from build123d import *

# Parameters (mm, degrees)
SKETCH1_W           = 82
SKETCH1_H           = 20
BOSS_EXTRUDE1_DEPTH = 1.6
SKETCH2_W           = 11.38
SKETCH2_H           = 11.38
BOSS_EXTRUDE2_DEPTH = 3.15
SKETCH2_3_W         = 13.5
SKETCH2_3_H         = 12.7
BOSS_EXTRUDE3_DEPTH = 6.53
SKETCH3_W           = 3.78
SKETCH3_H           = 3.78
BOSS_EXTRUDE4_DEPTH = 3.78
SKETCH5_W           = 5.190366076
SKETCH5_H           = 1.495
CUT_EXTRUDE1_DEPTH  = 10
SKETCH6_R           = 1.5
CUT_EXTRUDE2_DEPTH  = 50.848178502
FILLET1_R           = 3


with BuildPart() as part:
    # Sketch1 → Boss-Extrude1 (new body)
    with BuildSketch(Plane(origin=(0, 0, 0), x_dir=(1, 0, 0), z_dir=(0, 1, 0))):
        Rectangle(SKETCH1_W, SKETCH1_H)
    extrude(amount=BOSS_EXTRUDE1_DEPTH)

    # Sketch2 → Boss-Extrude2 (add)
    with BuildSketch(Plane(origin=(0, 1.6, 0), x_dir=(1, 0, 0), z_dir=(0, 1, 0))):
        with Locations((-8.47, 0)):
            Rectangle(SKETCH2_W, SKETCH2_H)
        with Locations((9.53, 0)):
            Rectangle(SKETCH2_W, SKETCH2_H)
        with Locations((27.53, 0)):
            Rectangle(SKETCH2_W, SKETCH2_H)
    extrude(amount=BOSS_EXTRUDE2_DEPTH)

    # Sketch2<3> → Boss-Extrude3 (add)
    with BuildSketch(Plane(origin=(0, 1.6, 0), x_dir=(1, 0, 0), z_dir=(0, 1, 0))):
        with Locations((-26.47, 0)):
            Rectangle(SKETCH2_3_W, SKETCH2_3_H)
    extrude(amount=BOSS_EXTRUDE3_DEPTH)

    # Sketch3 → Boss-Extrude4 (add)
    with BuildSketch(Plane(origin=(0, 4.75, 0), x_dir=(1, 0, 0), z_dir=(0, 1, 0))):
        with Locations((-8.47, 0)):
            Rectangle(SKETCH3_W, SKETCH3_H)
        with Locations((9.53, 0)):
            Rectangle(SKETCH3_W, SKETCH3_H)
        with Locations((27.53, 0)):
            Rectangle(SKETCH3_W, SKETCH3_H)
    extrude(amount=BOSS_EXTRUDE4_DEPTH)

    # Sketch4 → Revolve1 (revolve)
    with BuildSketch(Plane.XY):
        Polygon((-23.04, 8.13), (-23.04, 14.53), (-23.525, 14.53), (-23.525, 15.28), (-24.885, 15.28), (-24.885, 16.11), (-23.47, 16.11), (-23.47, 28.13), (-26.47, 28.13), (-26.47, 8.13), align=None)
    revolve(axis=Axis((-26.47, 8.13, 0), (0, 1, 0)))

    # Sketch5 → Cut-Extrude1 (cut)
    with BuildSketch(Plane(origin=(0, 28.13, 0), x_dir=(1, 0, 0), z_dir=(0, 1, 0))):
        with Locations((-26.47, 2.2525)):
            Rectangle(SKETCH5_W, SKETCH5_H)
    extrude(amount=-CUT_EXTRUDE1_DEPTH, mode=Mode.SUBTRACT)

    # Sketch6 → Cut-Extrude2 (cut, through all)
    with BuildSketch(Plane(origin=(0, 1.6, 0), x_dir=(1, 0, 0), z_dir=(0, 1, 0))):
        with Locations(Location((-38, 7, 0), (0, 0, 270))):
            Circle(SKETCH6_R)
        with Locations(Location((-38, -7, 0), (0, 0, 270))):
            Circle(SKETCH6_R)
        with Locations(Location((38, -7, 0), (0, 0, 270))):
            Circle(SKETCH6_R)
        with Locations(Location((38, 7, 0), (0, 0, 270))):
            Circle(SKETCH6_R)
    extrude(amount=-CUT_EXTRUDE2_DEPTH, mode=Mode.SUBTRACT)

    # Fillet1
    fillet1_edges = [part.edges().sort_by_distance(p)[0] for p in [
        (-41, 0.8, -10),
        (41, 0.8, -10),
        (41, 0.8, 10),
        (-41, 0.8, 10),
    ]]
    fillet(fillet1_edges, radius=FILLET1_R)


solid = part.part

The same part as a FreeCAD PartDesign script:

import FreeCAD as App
import Part
import Sketcher

V = App.Vector
Q = App.Units.Quantity


def edges_at(feature, points):
    """Names of the edges that pass closest to the given points."""
    edges = feature.Shape.Edges
    near = lambda p: min(range(len(edges)), key=lambda i: edges[i].distToShape(Part.Vertex(*p))[0])
    return sorted({f"Edge{near(p) + 1}" for p in points})

doc = App.newDocument("Part")
body = doc.addObject("PartDesign::Body", "Body")

sketch1 = body.newObject("Sketcher::SketchObject", "Sketch")
sketch1.AttachmentSupport = (doc.getObject("XZ_Plane"), [""])
sketch1.MapMode = "FlatFace"
sketch1.addGeometry([
    Part.LineSegment(V(-41, -10, 0), V(-41, 10, 0)),
    Part.LineSegment(V(-41, 10, 0), V(41, 10, 0)),
    Part.LineSegment(V(41, 10, 0), V(41, -10, 0)),
    Part.LineSegment(V(41, -10, 0), V(-41, -10, 0)),
], False)
sketch1.addConstraint([
    Sketcher.Constraint("Coincident", 0, 2, 1, 1),
    Sketcher.Constraint("Coincident", 1, 2, 2, 1),
    Sketcher.Constraint("Coincident", 2, 2, 3, 1),
    Sketcher.Constraint("Coincident", 3, 2, 0, 1),
    Sketcher.Constraint("Vertical", 0),
    Sketcher.Constraint("Horizontal", 1),
    Sketcher.Constraint("Vertical", 2),
    Sketcher.Constraint("Horizontal", 3),
    Sketcher.Constraint("Symmetric", 0, 2, 2, 2, -1, 1),
    Sketcher.Constraint("DistanceX", 1, 1, 1, 2, Q("82 mm")),
    Sketcher.Constraint("DistanceY", 0, 1, 0, 2, Q("20 mm")),
])
pad1 = body.newObject("PartDesign::Pad", "Pad")
pad1.Profile = sketch1
pad1.Length = 1.6
pad1.Reversed = True

sketch2 = body.newObject("Sketcher::SketchObject", "Sketch001")
sketch2.AttachmentSupport = (doc.getObject("XZ_Plane"), [""])
sketch2.MapMode = "FlatFace"
sketch2.AttachmentOffset = App.Placement(V(0, 0, -1.6), App.Rotation())
sketch2.addGeometry([
    Part.LineSegment(V(-14, -6, 0), V(-14, 6, 0)),
    Part.LineSegment(V(-14, 6, 0), V(-3, 6, 0)),
    Part.LineSegment(V(-3, 6, 0), V(-3, -6, 0)),
    Part.LineSegment(V(-3, -6, 0), V(-14, -6, 0)),
    Part.LineSegment(V(4, -6, 0), V(4, 6, 0)),
    Part.LineSegment(V(4, 6, 0), V(15, 6, 0)),
    Part.LineSegment(V(15, 6, 0), V(15, -6, 0)),
    Part.LineSegment(V(15, -6, 0), V(4, -6, 0)),
    Part.LineSegment(V(22, -6, 0), V(22, 6, 0)),
    Part.LineSegment(V(22, 6, 0), V(33, 6, 0)),
    Part.LineSegment(V(33, 6, 0), V(33, -6, 0)),
    Part.LineSegment(V(33, -6, 0), V(22, -6, 0)),
], False)
sketch2.addConstraint([
    Sketcher.Constraint("Coincident", 0, 2, 1, 1),
    Sketcher.Constraint("Coincident", 1, 2, 2, 1),
    Sketcher.Constraint("Coincident", 2, 2, 3, 1),
    Sketcher.Constraint("Coincident", 3, 2, 0, 1),
    Sketcher.Constraint("Coincident", 4, 2, 5, 1),
    Sketcher.Constraint("Coincident", 5, 2, 6, 1),
    Sketcher.Constraint("Coincident", 6, 2, 7, 1),
    Sketcher.Constraint("Coincident", 7, 2, 4, 1),
    Sketcher.Constraint("Coincident", 8, 2, 9, 1),
    Sketcher.Constraint("Coincident", 9, 2, 10, 1),
    Sketcher.Constraint("Coincident", 10, 2, 11, 1),
    Sketcher.Constraint("Coincident", 11, 2, 8, 1),
    Sketcher.Constraint("Vertical", 0),
    Sketcher.Constraint("Horizontal", 1),
    Sketcher.Constraint("Vertical", 2),
    Sketcher.Constraint("Horizontal", 3),
    Sketcher.Constraint("Vertical", 4),
    Sketcher.Constraint("Horizontal", 5),
    Sketcher.Constraint("Vertical", 6),
    Sketcher.Constraint("Horizontal", 7),
    Sketcher.Constraint("Vertical", 8),
    Sketcher.Constraint("Horizontal", 9),
    Sketcher.Constraint("Vertical", 10),
    Sketcher.Constraint("Horizontal", 11),
    Sketcher.Constraint("Horizontal", 1, 2, 4, 2),
    Sketcher.Constraint("Horizontal", 3, 2, 6, 2),
    Sketcher.Constraint("Horizontal", 5, 2, 8, 2),
    Sketcher.Constraint("Horizontal", 7, 2, 10, 2),
    Sketcher.Constraint("Equal", 3, 5),
    Sketcher.Constraint("Equal", 7, 9),
    Sketcher.Constraint("Equal", 11, 0),
    Sketcher.Constraint("DistanceX", 0, 2, 4, 2, Q("18 mm")),
    Sketcher.Constraint("DistanceX", 4, 2, 8, 2, Q("18 mm")),
    Sketcher.Constraint("DistanceX", 1, 1, 1, 2, Q("11.38 mm")),
    Sketcher.Constraint("DistanceX", 0, 2, -1, 1, Q("14.16 mm")),
    Sketcher.Constraint("DistanceY", -1, 1, 0, 2, Q("5.69 mm")),
])
pad2 = body.newObject("PartDesign::Pad", "Pad001")
pad2.Profile = sketch2
pad2.Length = 3.15
pad2.Reversed = True

sketch3 = body.newObject("Sketcher::SketchObject", "Sketch002")
sketch3.AttachmentSupport = (doc.getObject("XZ_Plane"), [""])
sketch3.MapMode = "FlatFace"
sketch3.AttachmentOffset = App.Placement(V(0, 0, -1.6), App.Rotation())
sketch3.addGeometry([
    Part.LineSegment(V(-33, -6, 0), V(-33, 6, 0)),
    Part.LineSegment(V(-33, 6, 0), V(-20, 6, 0)),
    Part.LineSegment(V(-20, 6, 0), V(-20, -6, 0)),
    Part.LineSegment(V(-20, -6, 0), V(-33, -6, 0)),
], False)
sketch3.addConstraint([
    Sketcher.Constraint("Coincident", 0, 2, 1, 1),
    Sketcher.Constraint("Coincident", 1, 2, 2, 1),
    Sketcher.Constraint("Coincident", 2, 2, 3, 1),
    Sketcher.Constraint("Coincident", 3, 2, 0, 1),
    Sketcher.Constraint("Vertical", 0),
    Sketcher.Constraint("Horizontal", 1),
    Sketcher.Constraint("Vertical", 2),
    Sketcher.Constraint("Horizontal", 3),
    Sketcher.Constraint("DistanceX", 1, 1, 1, 2, Q("13.5 mm")),
    Sketcher.Constraint("DistanceY", 0, 1, 0, 2, Q("12.7 mm")),
    Sketcher.Constraint("DistanceX", 0, 2, -1, 1, Q("33.22 mm")),
    Sketcher.Constraint("DistanceY", -1, 1, 0, 2, Q("6.35 mm")),
])
pad3 = body.newObject("PartDesign::Pad", "Pad002")
pad3.Profile = sketch3
pad3.Length = 6.53
pad3.Reversed = True

sketch4 = body.newObject("Sketcher::SketchObject", "Sketch003")
sketch4.AttachmentSupport = (doc.getObject("XZ_Plane"), [""])
sketch4.MapMode = "FlatFace"
sketch4.AttachmentOffset = App.Placement(V(0, 0, -4.75), App.Rotation())
sketch4.addGeometry([
    Part.LineSegment(V(-10.4, -1.9, 0), V(-10.4, 1.9, 0)),
    Part.LineSegment(V(-10.4, 1.9, 0), V(-6.6, 1.9, 0)),
    Part.LineSegment(V(-6.6, 1.9, 0), V(-6.6, -1.9, 0)),
    Part.LineSegment(V(-6.6, -1.9, 0), V(-10.4, -1.9, 0)),
    Part.LineSegment(V(7.6, -1.9, 0), V(7.6, 1.9, 0)),
    Part.LineSegment(V(7.6, 1.9, 0), V(11.4, 1.9, 0)),
    Part.LineSegment(V(11.4, 1.9, 0), V(11.4, -1.9, 0)),
    Part.LineSegment(V(11.4, -1.9, 0), V(7.6, -1.9, 0)),
    Part.LineSegment(V(25.6, -1.9, 0), V(25.6, 1.9, 0)),
    Part.LineSegment(V(25.6, 1.9, 0), V(29.4, 1.9, 0)),
    Part.LineSegment(V(29.4, 1.9, 0), V(29.4, -1.9, 0)),
    Part.LineSegment(V(29.4, -1.9, 0), V(25.6, -1.9, 0)),
], False)
sketch4.addConstraint([
    Sketcher.Constraint("Coincident", 0, 2, 1, 1),
    Sketcher.Constraint("Coincident", 1, 2, 2, 1),
    Sketcher.Constraint("Coincident", 2, 2, 3, 1),
    Sketcher.Constraint("Coincident", 3, 2, 0, 1),
    Sketcher.Constraint("Coincident", 4, 2, 5, 1),
    Sketcher.Constraint("Coincident", 5, 2, 6, 1),
    Sketcher.Constraint("Coincident", 6, 2, 7, 1),
    Sketcher.Constraint("Coincident", 7, 2, 4, 1),
    Sketcher.Constraint("Coincident", 8, 2, 9, 1),
    Sketcher.Constraint("Coincident", 9, 2, 10, 1),
    Sketcher.Constraint("Coincident", 10, 2, 11, 1),
    Sketcher.Constraint("Coincident", 11, 2, 8, 1),
    Sketcher.Constraint("Vertical", 0),
    Sketcher.Constraint("Horizontal", 1),
    Sketcher.Constraint("Vertical", 2),
    Sketcher.Constraint("Horizontal", 3),
    Sketcher.Constraint("Vertical", 4),
    Sketcher.Constraint("Horizontal", 5),
    Sketcher.Constraint("Vertical", 6),
    Sketcher.Constraint("Horizontal", 7),
    Sketcher.Constraint("Vertical", 8),
    Sketcher.Constraint("Horizontal", 9),
    Sketcher.Constraint("Vertical", 10),
    Sketcher.Constraint("Horizontal", 11),
    Sketcher.Constraint("Horizontal", 1, 2, 4, 2),
    Sketcher.Constraint("Horizontal", 3, 2, 6, 2),
    Sketcher.Constraint("Horizontal", 5, 2, 8, 2),
    Sketcher.Constraint("Horizontal", 7, 2, 10, 2),
    Sketcher.Constraint("Equal", 3, 5),
    Sketcher.Constraint("Equal", 7, 9),
    Sketcher.Constraint("Equal", 11, 0),
    Sketcher.Constraint("DistanceX", 0, 2, 4, 2, Q("18 mm")),
    Sketcher.Constraint("DistanceX", 4, 2, 8, 2, Q("18 mm")),
    Sketcher.Constraint("DistanceX", 1, 1, 1, 2, Q("3.78 mm")),
    Sketcher.Constraint("DistanceX", 0, 2, -1, 1, Q("10.36 mm")),
    Sketcher.Constraint("DistanceY", -1, 1, 0, 2, Q("1.89 mm")),
])
pad4 = body.newObject("PartDesign::Pad", "Pad003")
pad4.Profile = sketch4
pad4.Length = 3.78
pad4.Reversed = True

sketch5 = body.newObject("Sketcher::SketchObject", "Sketch004")
sketch5.AttachmentSupport = (doc.getObject("XY_Plane"), [""])
sketch5.MapMode = "FlatFace"
sketch5.addGeometry([
    Part.LineSegment(V(-23.04, 8.13, 0), V(-23.04, 14.53, 0)),
    Part.LineSegment(V(-23.04, 14.53, 0), V(-23.52, 14.53, 0)),
    Part.LineSegment(V(-23.52, 14.53, 0), V(-23.52, 15.28, 0)),
    Part.LineSegment(V(-23.52, 15.28, 0), V(-24.89, 15.28, 0)),
    Part.LineSegment(V(-24.89, 15.28, 0), V(-24.89, 16.11, 0)),
    Part.LineSegment(V(-24.89, 16.11, 0), V(-23.47, 16.11, 0)),
    Part.LineSegment(V(-23.47, 16.11, 0), V(-23.47, 28.13, 0)),
    Part.LineSegment(V(-23.47, 28.13, 0), V(-26.47, 28.13, 0)),
    Part.LineSegment(V(-26.47, 28.13, 0), V(-26.47, 8.13, 0)),
    Part.LineSegment(V(-26.47, 8.13, 0), V(-23.04, 8.13, 0)),
], False)
sketch5.addGeometry(Part.LineSegment(V(-26.47, 8.13, 0), V(-26.47, 28.13, 0)), True)
sketch5.addConstraint([
    Sketcher.Constraint("Coincident", 0, 2, 1, 1),
    Sketcher.Constraint("Coincident", 1, 2, 2, 1),
    Sketcher.Constraint("Coincident", 2, 2, 3, 1),
    Sketcher.Constraint("Coincident", 3, 2, 4, 1),
    Sketcher.Constraint("Coincident", 4, 2, 5, 1),
    Sketcher.Constraint("Coincident", 5, 2, 6, 1),
    Sketcher.Constraint("Coincident", 6, 2, 7, 1),
    Sketcher.Constraint("Coincident", 7, 2, 8, 1),
    Sketcher.Constraint("Coincident", 8, 2, 9, 1),
    Sketcher.Constraint("Coincident", 9, 2, 0, 1),
    Sketcher.Constraint("Vertical", 0),
    Sketcher.Constraint("Horizontal", 1),
    Sketcher.Constraint("Vertical", 2),
    Sketcher.Constraint("Horizontal", 3),
    Sketcher.Constraint("Vertical", 4),
    Sketcher.Constraint("Horizontal", 5),
    Sketcher.Constraint("Vertical", 6),
    Sketcher.Constraint("Horizontal", 7),
    Sketcher.Constraint("Vertical", 8),
    Sketcher.Constraint("Horizontal", 9),
    Sketcher.Constraint("Vertical", 10),
    Sketcher.Constraint("Coincident", 10, 1, 8, 2),
    Sketcher.Constraint("Horizontal", 6, 2, 10, 2),
    Sketcher.Constraint("DistanceX", 7, 2, 7, 1, Q("3 mm")),
    Sketcher.Constraint("DistanceY", 8, 2, 8, 1, Q("20 mm")),
    Sketcher.Constraint("DistanceY", 0, 1, 0, 2, Q("6.4 mm")),
    Sketcher.Constraint("DistanceX", 3, 2, 3, 1, Q("1.36 mm")),
    Sketcher.Constraint("DistanceX", 9, 1, 9, 2, Q("3.43 mm")),
    Sketcher.Constraint("DistanceY", 2, 1, 2, 2, Q("0.75 mm")),
    Sketcher.Constraint("DistanceY", 4, 1, 4, 2, Q("0.83 mm")),
    Sketcher.Constraint("DistanceX", 1, 2, 1, 1, Q("0.485 mm")),
    Sketcher.Constraint("DistanceX", 0, 2, -1, 1, Q("23.04 mm")),
    Sketcher.Constraint("DistanceY", -1, 1, 0, 2, Q("14.53 mm")),
])
revolution = body.newObject("PartDesign::Revolution", "Revolution")
revolution.Profile = sketch5
revolution.ReferenceAxis = (sketch5, ["Axis0"])
revolution.Angle = 360

sketch6 = body.newObject("Sketcher::SketchObject", "Sketch005")
sketch6.AttachmentSupport = (doc.getObject("XZ_Plane"), [""])
sketch6.MapMode = "FlatFace"
sketch6.AttachmentOffset = App.Placement(V(0, 0, -28.13), App.Rotation())
sketch6.addGeometry([
    Part.LineSegment(V(-29.1, -3, 0), V(-29.1, -1.5, 0)),
    Part.LineSegment(V(-29.1, -1.5, 0), V(-23.9, -1.5, 0)),
    Part.LineSegment(V(-23.9, -1.5, 0), V(-23.9, -3, 0)),
    Part.LineSegment(V(-23.9, -3, 0), V(-29.1, -3, 0)),
], False)
sketch6.addConstraint([
    Sketcher.Constraint("Coincident", 0, 2, 1, 1),
    Sketcher.Constraint("Coincident", 1, 2, 2, 1),
    Sketcher.Constraint("Coincident", 2, 2, 3, 1),
    Sketcher.Constraint("Coincident", 3, 2, 0, 1),
    Sketcher.Constraint("Vertical", 0),
    Sketcher.Constraint("Horizontal", 1),
    Sketcher.Constraint("Vertical", 2),
    Sketcher.Constraint("Horizontal", 3),
    Sketcher.Constraint("DistanceY", 2, 2, -1, 1, Q("3 mm")),
    Sketcher.Constraint("DistanceY", 0, 1, 0, 2, Q("1.495 mm")),
    Sketcher.Constraint("DistanceX", 1, 1, 1, 2, Q("5.190366 mm")),
    Sketcher.Constraint("DistanceX", 0, 2, -1, 1, Q("29.065183 mm")),
])
pocket1 = body.newObject("PartDesign::Pocket", "Pocket")
pocket1.Profile = sketch6
pocket1.Length = 10
pocket1.Reversed = True

sketch7 = body.newObject("Sketcher::SketchObject", "Sketch006")
sketch7.AttachmentSupport = (doc.getObject("XZ_Plane"), [""])
sketch7.MapMode = "FlatFace"
sketch7.AttachmentOffset = App.Placement(V(0, 0, -1.6), App.Rotation())
sketch7.addGeometry([
    Part.Circle(V(-38, -7, 0), V(0, 0, 1), 1.5),
    Part.Circle(V(-38, 7, 0), V(0, 0, 1), 1.5),
    Part.Circle(V(38, 7, 0), V(0, 0, 1), 1.5),
    Part.Circle(V(38, -7, 0), V(0, 0, 1), 1.5),
], False)
sketch7.addConstraint([
    Sketcher.Constraint("Equal", 0, 1),
    Sketcher.Constraint("Equal", 1, 2),
    Sketcher.Constraint("Equal", 2, 3),
    Sketcher.Constraint("Symmetric", 0, 3, 2, 3, -1, 1),
    Sketcher.Constraint("Symmetric", 1, 3, 3, 3, -1, 1),
    Sketcher.Constraint("Symmetric", 1, 3, 2, 3, -2),
    Sketcher.Constraint("Diameter", 0, Q("3 mm")),
    Sketcher.Constraint("DistanceX", 0, 3, -1, 1, Q("38 mm")),
    Sketcher.Constraint("DistanceY", 0, 3, -1, 1, Q("7 mm")),
])
pocket2 = body.newObject("PartDesign::Pocket", "Pocket001")
pocket2.Profile = sketch7
pocket2.Type = "ThroughAll"
pocket2.Reversed = True
doc.recompute()

fillet = body.newObject("PartDesign::Fillet", "Fillet")
fillet.Base = (pocket2, edges_at(pocket2, [
    (-41, 0.8, -10),
    (41, 0.8, -10),
    (41, 0.8, 10),
    (-41, 0.8, 10),
]))
fillet.Radius = 3

doc.recompute()
